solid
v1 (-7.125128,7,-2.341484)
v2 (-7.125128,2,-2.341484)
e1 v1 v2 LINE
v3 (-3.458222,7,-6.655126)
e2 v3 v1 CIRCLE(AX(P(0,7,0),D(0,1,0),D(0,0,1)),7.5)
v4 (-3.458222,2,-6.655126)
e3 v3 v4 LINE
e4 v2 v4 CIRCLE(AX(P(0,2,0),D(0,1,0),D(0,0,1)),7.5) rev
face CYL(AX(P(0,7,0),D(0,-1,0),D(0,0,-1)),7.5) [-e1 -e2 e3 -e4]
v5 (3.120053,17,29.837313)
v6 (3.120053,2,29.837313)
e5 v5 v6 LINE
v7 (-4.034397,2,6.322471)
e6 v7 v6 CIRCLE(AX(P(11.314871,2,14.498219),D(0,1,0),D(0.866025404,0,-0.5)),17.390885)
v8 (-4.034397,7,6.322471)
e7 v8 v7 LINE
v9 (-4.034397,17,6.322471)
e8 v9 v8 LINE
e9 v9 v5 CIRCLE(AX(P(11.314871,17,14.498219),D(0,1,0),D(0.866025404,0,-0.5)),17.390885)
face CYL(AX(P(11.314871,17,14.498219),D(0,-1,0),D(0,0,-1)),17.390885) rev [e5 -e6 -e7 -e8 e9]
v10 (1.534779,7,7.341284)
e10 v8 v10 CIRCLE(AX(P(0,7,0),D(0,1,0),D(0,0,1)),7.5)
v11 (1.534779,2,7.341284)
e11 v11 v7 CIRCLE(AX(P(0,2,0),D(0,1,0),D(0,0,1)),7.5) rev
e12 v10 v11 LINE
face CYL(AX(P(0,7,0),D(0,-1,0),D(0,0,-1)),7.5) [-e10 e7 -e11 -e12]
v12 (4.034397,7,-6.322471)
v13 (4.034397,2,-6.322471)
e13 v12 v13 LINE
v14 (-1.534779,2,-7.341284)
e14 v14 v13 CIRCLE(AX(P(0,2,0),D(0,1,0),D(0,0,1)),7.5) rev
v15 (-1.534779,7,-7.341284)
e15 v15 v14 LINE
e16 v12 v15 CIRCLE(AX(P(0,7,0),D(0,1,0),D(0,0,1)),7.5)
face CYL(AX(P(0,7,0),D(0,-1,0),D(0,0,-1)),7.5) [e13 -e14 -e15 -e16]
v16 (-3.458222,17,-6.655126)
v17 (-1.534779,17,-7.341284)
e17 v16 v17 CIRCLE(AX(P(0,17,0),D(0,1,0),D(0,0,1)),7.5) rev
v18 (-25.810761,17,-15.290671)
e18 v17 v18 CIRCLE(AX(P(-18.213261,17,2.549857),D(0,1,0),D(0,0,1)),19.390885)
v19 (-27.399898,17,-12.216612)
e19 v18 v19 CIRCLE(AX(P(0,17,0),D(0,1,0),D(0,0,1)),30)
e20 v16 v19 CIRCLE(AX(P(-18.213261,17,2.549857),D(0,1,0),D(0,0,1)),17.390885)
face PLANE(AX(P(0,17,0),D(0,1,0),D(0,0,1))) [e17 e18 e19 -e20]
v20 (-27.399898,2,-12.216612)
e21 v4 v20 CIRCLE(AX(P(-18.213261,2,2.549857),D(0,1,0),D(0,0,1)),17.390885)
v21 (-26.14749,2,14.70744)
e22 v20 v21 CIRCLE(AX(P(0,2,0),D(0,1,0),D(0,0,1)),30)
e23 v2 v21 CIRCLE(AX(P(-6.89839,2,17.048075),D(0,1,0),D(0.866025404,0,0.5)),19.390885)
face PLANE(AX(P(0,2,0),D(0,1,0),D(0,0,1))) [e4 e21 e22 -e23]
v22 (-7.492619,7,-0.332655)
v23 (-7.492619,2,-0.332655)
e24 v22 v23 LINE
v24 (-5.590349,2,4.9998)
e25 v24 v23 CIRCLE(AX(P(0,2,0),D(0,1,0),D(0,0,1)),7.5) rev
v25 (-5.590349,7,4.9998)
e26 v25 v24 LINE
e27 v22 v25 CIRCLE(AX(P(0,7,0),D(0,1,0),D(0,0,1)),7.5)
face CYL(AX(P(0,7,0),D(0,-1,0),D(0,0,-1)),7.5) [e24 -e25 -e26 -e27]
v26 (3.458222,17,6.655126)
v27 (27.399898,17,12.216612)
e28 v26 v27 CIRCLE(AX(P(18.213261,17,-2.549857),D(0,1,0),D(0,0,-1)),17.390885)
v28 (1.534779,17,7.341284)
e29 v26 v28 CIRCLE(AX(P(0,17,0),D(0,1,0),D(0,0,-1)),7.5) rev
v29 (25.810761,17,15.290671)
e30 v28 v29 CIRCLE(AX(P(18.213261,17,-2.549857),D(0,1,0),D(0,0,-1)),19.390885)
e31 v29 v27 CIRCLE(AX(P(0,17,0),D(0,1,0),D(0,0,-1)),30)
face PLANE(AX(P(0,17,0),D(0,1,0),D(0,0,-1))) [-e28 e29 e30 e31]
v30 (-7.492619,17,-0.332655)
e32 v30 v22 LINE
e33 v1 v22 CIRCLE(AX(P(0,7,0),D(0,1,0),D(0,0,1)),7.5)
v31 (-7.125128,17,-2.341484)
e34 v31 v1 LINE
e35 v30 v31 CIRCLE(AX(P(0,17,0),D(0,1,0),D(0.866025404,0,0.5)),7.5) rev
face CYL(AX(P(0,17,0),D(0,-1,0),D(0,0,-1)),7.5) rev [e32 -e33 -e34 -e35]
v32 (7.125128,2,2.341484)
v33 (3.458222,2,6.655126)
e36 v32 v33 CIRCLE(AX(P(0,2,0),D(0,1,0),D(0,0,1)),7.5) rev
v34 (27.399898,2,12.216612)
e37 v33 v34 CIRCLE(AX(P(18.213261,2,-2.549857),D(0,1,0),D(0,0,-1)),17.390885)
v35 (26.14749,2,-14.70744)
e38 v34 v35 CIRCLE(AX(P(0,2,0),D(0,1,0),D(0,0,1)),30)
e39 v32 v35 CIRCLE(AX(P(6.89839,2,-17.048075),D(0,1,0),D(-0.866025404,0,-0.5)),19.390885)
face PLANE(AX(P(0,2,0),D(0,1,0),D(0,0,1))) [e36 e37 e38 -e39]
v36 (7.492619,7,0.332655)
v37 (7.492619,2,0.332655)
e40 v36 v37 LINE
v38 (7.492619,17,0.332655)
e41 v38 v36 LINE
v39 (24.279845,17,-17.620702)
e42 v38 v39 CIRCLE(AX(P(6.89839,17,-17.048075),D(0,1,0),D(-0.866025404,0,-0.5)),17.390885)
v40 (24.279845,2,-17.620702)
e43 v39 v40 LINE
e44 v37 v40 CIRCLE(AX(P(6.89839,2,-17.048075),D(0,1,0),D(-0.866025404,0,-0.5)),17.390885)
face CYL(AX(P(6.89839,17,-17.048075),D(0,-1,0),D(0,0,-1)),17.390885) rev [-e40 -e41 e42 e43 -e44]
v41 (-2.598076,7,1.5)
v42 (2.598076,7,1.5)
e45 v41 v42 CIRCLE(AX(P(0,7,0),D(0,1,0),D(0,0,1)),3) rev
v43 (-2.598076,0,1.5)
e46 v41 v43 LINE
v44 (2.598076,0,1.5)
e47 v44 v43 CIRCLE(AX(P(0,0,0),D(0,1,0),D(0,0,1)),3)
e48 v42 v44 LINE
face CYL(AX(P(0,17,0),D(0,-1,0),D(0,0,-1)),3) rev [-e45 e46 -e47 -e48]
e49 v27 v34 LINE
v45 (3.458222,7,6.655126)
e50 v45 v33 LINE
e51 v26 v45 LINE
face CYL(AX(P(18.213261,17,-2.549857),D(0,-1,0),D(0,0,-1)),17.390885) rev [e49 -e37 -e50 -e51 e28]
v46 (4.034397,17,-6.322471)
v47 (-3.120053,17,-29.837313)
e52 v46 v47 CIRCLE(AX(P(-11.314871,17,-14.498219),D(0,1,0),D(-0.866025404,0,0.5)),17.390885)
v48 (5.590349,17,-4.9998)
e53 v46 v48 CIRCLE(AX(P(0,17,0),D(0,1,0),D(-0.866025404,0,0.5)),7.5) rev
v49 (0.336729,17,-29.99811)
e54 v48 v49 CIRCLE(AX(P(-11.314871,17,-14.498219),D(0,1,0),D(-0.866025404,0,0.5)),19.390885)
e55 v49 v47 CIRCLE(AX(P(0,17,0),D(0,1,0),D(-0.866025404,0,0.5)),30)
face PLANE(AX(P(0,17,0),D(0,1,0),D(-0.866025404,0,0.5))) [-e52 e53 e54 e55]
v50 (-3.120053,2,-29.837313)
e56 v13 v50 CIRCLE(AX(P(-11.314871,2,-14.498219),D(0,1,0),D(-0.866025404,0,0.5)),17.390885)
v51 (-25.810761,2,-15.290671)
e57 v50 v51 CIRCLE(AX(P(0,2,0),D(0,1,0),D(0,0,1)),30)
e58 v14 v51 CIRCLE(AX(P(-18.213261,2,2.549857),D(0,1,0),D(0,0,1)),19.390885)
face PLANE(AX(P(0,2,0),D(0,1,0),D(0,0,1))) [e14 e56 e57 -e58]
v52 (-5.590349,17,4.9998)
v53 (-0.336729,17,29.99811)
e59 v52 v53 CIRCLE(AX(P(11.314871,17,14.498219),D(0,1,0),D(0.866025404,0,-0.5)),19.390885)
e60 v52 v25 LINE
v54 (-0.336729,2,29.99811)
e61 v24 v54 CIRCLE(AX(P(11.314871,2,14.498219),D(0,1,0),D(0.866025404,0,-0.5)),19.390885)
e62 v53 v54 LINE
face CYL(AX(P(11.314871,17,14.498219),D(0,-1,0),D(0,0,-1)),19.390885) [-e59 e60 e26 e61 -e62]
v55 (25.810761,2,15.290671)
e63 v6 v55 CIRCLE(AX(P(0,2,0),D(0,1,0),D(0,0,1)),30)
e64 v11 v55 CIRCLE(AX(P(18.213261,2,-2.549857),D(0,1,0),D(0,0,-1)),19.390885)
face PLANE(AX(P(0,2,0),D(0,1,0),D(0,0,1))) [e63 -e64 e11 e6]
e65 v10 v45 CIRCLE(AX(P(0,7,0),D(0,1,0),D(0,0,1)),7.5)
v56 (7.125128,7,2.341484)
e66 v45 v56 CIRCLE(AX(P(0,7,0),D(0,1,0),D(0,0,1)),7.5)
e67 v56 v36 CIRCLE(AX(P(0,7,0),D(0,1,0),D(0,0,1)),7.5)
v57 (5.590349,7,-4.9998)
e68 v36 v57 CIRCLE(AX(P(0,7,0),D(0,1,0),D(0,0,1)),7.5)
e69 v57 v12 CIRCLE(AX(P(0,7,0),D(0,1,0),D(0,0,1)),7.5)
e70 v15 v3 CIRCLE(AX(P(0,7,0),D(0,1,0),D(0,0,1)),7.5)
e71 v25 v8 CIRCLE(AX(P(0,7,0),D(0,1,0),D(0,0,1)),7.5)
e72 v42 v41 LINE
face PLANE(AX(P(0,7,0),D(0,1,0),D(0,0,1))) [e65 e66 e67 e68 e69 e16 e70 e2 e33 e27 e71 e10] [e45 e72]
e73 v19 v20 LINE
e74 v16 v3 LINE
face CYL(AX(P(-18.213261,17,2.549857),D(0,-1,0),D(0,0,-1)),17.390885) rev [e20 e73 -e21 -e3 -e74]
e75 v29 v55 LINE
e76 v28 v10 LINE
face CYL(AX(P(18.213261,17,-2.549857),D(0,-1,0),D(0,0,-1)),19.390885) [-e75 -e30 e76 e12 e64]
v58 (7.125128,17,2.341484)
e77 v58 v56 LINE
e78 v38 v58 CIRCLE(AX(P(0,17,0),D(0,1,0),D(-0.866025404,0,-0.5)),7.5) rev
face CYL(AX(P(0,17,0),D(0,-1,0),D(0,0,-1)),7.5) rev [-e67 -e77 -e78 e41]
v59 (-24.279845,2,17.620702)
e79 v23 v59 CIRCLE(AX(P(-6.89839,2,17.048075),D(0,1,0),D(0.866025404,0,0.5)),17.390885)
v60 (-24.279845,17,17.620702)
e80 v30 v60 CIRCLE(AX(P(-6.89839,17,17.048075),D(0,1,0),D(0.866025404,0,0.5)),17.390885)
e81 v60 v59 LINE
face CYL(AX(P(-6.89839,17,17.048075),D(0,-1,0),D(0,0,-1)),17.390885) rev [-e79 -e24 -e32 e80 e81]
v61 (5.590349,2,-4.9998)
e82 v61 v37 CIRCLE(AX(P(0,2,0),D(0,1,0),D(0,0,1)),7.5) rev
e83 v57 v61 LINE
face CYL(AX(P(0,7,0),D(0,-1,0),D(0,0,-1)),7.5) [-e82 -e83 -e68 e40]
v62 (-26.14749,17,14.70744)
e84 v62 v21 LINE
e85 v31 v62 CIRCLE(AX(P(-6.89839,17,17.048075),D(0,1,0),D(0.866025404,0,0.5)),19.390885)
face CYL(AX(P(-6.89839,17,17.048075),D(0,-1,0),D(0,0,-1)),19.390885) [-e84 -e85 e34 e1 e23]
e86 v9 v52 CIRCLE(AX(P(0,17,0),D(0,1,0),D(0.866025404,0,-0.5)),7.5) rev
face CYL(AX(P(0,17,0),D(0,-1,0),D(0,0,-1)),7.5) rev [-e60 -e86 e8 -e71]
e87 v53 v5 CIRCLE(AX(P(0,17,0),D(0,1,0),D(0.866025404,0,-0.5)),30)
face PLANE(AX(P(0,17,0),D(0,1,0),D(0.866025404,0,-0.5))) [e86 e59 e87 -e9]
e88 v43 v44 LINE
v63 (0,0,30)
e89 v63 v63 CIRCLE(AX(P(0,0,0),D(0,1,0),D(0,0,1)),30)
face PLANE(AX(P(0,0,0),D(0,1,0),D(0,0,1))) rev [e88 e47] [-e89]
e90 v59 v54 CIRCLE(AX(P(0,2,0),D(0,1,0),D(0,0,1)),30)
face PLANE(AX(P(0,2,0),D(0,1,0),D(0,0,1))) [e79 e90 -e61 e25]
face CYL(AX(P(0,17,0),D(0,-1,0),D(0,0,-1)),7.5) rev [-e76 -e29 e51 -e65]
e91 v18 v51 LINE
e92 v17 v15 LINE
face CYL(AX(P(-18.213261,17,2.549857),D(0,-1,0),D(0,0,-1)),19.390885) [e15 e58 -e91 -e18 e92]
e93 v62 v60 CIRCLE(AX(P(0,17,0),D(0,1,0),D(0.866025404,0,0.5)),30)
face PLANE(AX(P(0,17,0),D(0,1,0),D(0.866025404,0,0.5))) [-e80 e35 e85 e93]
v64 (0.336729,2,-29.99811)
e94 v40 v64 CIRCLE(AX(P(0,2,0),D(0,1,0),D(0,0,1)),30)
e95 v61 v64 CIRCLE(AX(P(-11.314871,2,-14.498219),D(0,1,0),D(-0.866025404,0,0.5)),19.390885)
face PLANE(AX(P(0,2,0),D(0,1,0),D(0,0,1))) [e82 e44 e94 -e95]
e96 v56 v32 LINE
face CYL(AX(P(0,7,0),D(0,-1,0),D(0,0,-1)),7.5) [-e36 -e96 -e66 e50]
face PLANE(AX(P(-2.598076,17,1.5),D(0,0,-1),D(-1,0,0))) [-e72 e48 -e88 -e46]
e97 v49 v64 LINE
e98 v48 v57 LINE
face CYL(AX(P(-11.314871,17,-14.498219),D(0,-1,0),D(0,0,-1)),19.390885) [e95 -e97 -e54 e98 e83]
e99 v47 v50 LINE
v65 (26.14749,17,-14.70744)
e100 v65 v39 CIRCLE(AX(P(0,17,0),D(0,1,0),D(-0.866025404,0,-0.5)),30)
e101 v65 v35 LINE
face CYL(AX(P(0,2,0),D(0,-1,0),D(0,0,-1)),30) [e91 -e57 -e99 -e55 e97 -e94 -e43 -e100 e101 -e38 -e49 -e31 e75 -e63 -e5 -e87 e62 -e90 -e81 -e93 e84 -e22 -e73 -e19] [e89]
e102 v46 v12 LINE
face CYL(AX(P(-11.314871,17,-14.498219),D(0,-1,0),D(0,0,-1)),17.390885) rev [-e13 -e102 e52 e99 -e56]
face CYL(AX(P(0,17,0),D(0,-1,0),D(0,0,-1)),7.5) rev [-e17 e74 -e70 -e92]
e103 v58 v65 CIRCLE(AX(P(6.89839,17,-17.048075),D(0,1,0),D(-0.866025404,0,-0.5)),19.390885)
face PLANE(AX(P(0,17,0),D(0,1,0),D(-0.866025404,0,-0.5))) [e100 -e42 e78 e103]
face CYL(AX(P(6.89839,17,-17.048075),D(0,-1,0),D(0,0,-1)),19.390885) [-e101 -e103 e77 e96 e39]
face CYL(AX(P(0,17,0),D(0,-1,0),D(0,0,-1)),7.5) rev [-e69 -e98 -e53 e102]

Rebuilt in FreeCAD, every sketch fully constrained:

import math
import FreeCAD as App
import Part
import Sketcher
from FreeCAD import Vector
Q = App.Units.Quantity

doc = App.newDocument("Part")
body = doc.addObject("PartDesign::Body", "Body")

sketch1 = body.newObject("Sketcher::SketchObject", "Sketch")
sketch1.AttachmentSupport = (doc.getObject("XZ_Plane"), [""])
sketch1.MapMode = "FlatFace"
sketch1.addGeometry(Part.Circle(Vector(0, 0, 0), Vector(0, 0, 1), 30), False)
sketch1.addConstraint(Sketcher.Constraint("Coincident", 0, 3, -1, 1))
sketch1.addConstraint(Sketcher.Constraint("Diameter", 0, Q("60 mm")))
pad1 = body.newObject("PartDesign::Pad", "Pad")
pad1.Profile = sketch1
pad1.Length = 2
pad1.Reversed = True

sketch2 = body.newObject("Sketcher::SketchObject", "Sketch001")
sketch2.AttachmentSupport = (doc.getObject("XZ_Plane"), [""])
sketch2.MapMode = "FlatFace"
sketch2.addGeometry(Part.Circle(Vector(0, 0, 0), Vector(0, 0, 1), 8), False)
sketch2.addConstraint(Sketcher.Constraint("Coincident", 0, 3, -1, 1))
sketch2.addConstraint(Sketcher.Constraint("Diameter", 0, Q("15 mm")))
pad2 = body.newObject("PartDesign::Pad", "Pad001")
pad2.Profile = sketch2
pad2.Length = 7
pad2.Reversed = True

sketch3 = body.newObject("Sketcher::SketchObject", "Sketch002")
sketch3.AttachmentSupport = (doc.getObject("XZ_Plane"), [""])
sketch3.MapMode = "FlatFace"
sketch3.AttachmentOffset = App.Placement(Vector(0, 0, -2), App.Rotation())
sketch3.addGeometry(Part.ArcOfCircle(Part.Circle(Vector(-18.2, 2.5, 0), Vector(0, 0, 1), 17.4), math.radians(-122), math.radians(-32)), False)
sketch3.addGeometry(Part.ArcOfCircle(Part.Circle(Vector(0, 0, 0), Vector(0, 0, 1), 7.5), math.radians(-117.46), math.radians(-109.74)), False)
sketch3.addGeometry(Part.ArcOfCircle(Part.Circle(Vector(0, 0, 0), Vector(0, 0, 1), 7.5), math.radians(-109.74), math.radians(-101.81)), False)
sketch3.addGeometry(Part.ArcOfCircle(Part.Circle(Vector(-18.2, 2.5, 0), Vector(0, 0, 1), 19.4), math.radians(-113), math.radians(-31)), False)
sketch3.addGeometry(Part.ArcOfCircle(Part.Circle(Vector(0, 0, 0), Vector(0, 0, 1), 30), math.radians(-152.62), math.radians(-149.36)), False)
sketch3.addGeometry(Part.ArcOfCircle(Part.Circle(Vector(0, 0, 0), Vector(0, 0, 1), 30), math.radians(-155.97), math.radians(-152.62)), False)
sketch3.addConstraint(Sketcher.Constraint("Coincident", 0, 2, 1, 1))
sketch3.addConstraint(Sketcher.Constraint("Tangent", 1, 2, 2, 1))
sketch3.addConstraint(Sketcher.Constraint("Coincident", 2, 2, 3, 2))
sketch3.addConstraint(Sketcher.Constraint("Coincident", 3, 1, 4, 2))
sketch3.addConstraint(Sketcher.Constraint("Tangent", 4, 1, 5, 2))
sketch3.addConstraint(Sketcher.Constraint("Coincident", 5, 1, 0, 1))
sketch3.addConstraint(Sketcher.Constraint("Coincident", 1, 3, -1, 1))
sketch3.addConstraint(Sketcher.Constraint("Coincident", 4, 3, -1, 1))
sketch3.addConstraint(Sketcher.Constraint("Coincident", 3, 3, 0, 3))
sketch3.addConstraint(Sketcher.Constraint("Equal", 1, 2))
sketch3.addConstraint(Sketcher.Constraint("Equal", 4, 5))
sketch3.addConstraint(Sketcher.Constraint("Radius", 4, Q("30 mm")))
sketch3.addConstraint(Sketcher.Constraint("Radius", 1, Q("7.5 mm")))
sketch3.addConstraint(Sketcher.Constraint("Radius", 0, Q("17.390885 mm")))
sketch3.addConstraint(Sketcher.Constraint("Radius", 3, Q("19.390885 mm")))
sketch3.addConstraint(Sketcher.Constraint("DistanceX", 3, 1, 0, 3, Q("7.5975 mm")))
sketch3.addConstraint(Sketcher.Constraint("DistanceX", 0, 3, -1, 1, Q("18.213261 mm")))
sketch3.addConstraint(Sketcher.Constraint("DistanceX", 1, 2, -1, 1, Q("2.532532 mm")))
sketch3.addConstraint(Sketcher.Constraint("DistanceX", 4, 1, -1, 1, Q("26.63891 mm")))
pad3 = body.newObject("PartDesign::Pad", "Pad002")
pad3.Profile = sketch3
pad3.Length = 15
pad3.Reversed = True

sketch4 = body.newObject("Sketcher::SketchObject", "Sketch003")
sketch4.AttachmentSupport = (doc.getObject("XZ_Plane"), [""])
sketch4.MapMode = "FlatFace"
sketch4.addGeometry(Part.LineSegment(Vector(-2.6, 1.5, 0), Vector(2.6, 1.5, 0)), False)
sketch4.addGeometry(Part.ArcOfCircle(Part.Circle(Vector(0, 0, 0), Vector(0, 0, 1), 3), math.radians(150), math.radians(390)), False)
sketch4.addConstraint(Sketcher.Constraint("Coincident", 0, 1, 1, 1))
sketch4.addConstraint(Sketcher.Constraint("Coincident", 1, 2, 0, 2))
sketch4.addConstraint(Sketcher.Constraint("Horizontal", 0))
sketch4.addConstraint(Sketcher.Constraint("Coincident", 1, 3, -1, 1))
sketch4.addConstraint(Sketcher.Constraint("Radius", 1, Q("3 mm")))
sketch4.addConstraint(Sketcher.Constraint("DistanceY", -1, 1, 0, 1, Q("1.5 mm")))
pocket1 = body.newObject("PartDesign::Pocket", "Pocket")
pocket1.Profile = sketch4
pocket1.Type = "ThroughAll"
doc.recompute()

polarpattern = body.newObject("PartDesign::PolarPattern", "PolarPattern")
polarpattern.Originals = [pad3]
polarpattern.Axis = (doc.getObject("Y_Axis"), [""])
polarpattern.Angle = 360
polarpattern.Occurrences = 6
body.Tip = polarpattern

doc.recompute()
